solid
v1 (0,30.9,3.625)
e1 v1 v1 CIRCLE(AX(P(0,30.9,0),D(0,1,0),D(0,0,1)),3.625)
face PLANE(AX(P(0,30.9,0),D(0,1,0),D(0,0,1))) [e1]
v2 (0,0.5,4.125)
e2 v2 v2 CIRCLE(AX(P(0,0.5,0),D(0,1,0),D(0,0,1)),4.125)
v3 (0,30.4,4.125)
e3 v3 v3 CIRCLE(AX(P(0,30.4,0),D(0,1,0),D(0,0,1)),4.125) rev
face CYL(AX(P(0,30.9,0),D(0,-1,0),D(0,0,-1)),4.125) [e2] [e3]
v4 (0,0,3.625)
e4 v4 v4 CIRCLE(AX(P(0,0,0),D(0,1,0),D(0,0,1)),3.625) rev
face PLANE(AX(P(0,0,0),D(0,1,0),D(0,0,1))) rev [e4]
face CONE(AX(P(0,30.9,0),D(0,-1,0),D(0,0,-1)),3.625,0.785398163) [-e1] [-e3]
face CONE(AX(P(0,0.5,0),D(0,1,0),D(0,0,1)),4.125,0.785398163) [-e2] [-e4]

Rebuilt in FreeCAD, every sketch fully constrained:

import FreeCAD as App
import Part
import Sketcher


def edges_at(feature, points):
    """Names of the edges that pass closest to the given points."""
    edges = feature.Shape.Edges
    near = lambda p: min(range(len(edges)), key=lambda i: edges[i].distToShape(Part.Vertex(*p))[0])
    return sorted({f"Edge{near(p) + 1}" for p in points})

doc = App.newDocument("Part")
body = doc.addObject("PartDesign::Body", "Body")

sketch1 = body.newObject("Sketcher::SketchObject", "Sketch")
sketch1.AttachmentSupport = (doc.getObject("XZ_Plane"), [""])
sketch1.MapMode = "FlatFace"
sketch1.addGeometry(Part.Circle(App.Vector(0, 0, 0), App.Vector(0, 0, 1), 4.1), False)
sketch1.addConstraint([
    Sketcher.Constraint("Coincident", 0, 3, -1, 1),
    Sketcher.Constraint("Diameter", 0, 8.25),
])
pad1 = body.newObject("PartDesign::Pad", "Pad")
pad1.Profile = sketch1
pad1.Length = 30.9
pad1.Reversed = True
doc.recompute()

chamfer = body.newObject("PartDesign::Chamfer", "Chamfer")
chamfer.Base = (pad1, edges_at(pad1, [(-4.125, 0, 0), (-4.125, 30.9, 0)]))
chamfer.Size = 0.5

doc.recompute()
